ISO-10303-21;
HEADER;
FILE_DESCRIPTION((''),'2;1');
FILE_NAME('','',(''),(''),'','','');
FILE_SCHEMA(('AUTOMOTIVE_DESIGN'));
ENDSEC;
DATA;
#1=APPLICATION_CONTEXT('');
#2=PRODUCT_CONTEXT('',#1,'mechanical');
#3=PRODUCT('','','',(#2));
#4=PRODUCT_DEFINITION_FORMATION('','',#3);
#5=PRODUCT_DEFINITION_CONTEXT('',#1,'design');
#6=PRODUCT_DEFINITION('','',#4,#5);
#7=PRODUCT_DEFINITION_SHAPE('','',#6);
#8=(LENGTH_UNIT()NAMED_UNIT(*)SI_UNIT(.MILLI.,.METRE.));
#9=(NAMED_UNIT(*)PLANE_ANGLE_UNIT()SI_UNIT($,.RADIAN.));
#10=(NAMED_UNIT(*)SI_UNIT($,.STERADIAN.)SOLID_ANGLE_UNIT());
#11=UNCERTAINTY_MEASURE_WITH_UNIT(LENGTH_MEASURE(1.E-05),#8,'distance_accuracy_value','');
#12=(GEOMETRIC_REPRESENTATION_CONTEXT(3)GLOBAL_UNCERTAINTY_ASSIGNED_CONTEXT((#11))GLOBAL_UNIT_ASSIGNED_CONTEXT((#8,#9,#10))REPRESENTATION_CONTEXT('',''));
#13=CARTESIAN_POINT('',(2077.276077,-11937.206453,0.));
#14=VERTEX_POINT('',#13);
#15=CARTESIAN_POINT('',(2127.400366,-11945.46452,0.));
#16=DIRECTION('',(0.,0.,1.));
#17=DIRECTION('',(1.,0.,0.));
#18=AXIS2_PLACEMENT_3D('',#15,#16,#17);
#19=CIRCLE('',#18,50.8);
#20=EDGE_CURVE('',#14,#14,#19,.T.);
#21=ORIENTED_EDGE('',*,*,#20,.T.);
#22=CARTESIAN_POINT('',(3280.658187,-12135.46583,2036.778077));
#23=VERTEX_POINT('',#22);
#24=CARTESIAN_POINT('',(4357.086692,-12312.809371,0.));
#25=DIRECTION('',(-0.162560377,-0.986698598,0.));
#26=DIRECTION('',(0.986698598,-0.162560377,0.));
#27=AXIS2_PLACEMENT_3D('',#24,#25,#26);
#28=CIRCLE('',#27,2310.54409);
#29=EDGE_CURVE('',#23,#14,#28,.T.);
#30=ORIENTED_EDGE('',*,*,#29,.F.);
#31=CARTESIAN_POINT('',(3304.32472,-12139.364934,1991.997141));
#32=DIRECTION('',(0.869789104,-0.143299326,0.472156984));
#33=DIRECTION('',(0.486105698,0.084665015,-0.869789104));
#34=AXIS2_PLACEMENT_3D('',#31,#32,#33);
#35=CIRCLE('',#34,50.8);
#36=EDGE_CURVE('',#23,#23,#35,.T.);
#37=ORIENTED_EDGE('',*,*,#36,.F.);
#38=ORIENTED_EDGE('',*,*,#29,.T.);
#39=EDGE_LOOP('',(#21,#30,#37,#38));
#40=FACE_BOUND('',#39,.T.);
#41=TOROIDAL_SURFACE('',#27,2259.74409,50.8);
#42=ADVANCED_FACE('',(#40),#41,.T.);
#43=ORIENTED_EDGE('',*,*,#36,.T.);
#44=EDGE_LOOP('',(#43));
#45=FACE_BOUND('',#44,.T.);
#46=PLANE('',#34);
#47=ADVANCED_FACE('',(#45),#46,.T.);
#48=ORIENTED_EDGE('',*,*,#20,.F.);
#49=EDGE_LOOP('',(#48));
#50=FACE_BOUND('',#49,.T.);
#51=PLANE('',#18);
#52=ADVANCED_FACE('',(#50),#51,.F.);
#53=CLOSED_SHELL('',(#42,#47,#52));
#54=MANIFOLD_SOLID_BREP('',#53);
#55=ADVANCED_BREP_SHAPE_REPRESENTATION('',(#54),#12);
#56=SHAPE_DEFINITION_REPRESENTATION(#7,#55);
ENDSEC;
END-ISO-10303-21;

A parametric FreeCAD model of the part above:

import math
import FreeCAD as App
import Part
import Sketcher
from FreeCAD import Vector
Q = App.Units.Quantity

doc = App.newDocument("Part")
body = doc.addObject("PartDesign::Body", "Body")

# Sketch on XY plane
sketch1 = body.newObject("Sketcher::SketchObject", "Sketch")
sketch1.AttachmentSupport = (doc.getObject("XY_Plane"), [""])
sketch1.MapMode = "FlatFace"
sketch1.addGeometry(Part.Circle(Vector(2127, -11945, 0), Vector(0, 0, 1), 51), False)
sketch1.addConstraint(Sketcher.Constraint("Diameter", 0, Q("4 in")))
sketch1.addConstraint(Sketcher.Constraint("DistanceY", 0, 3, -1, 1, Q("11945.46452 mm")))
sketch1.addConstraint(Sketcher.Constraint("DistanceX", -1, 1, 0, 3, Q("2127.400366 mm")))

# Sketch on an angled plane
sketch2 = body.newObject("Sketcher::SketchObject", "Sketch001")
sketch2.Placement = App.Placement(Vector(-1859.811345, -11288.564187, 0), App.Rotation(Vector(-0.986698598, 0.162560377, 0), Vector(0, 0, 0.999999999), Vector(0.162560377, 0.986698598, 0), "ZXY"))
sketch2.addGeometry(Part.ArcOfCircle(Part.Circle(Vector(-6301, 0, 0), Vector(0, 0, 1), 2260), math.radians(0), math.radians(62)), False)
sketch2.addConstraint(Sketcher.Constraint("PointOnObject", 0, 3, -1))
sketch2.addConstraint(Sketcher.Constraint("PointOnObject", 0, 1, -1))
sketch2.addConstraint(Sketcher.Constraint("Radius", 0, Q("2259.74409 mm")))
sketch2.addConstraint(Sketcher.Constraint("DistanceX", 0, 3, -1, 1, Q("6300.706258 mm")))
sketch2.addConstraint(Sketcher.Constraint("DistanceY", -1, 1, 0, 2, Q("1991.997141 mm")))
doc.recompute()

additivepipe = body.newObject("PartDesign::AdditivePipe", "AdditivePipe")
additivepipe.Profile = sketch1
additivepipe.Spine = (sketch2, ["Edge1"])

doc.recompute()
